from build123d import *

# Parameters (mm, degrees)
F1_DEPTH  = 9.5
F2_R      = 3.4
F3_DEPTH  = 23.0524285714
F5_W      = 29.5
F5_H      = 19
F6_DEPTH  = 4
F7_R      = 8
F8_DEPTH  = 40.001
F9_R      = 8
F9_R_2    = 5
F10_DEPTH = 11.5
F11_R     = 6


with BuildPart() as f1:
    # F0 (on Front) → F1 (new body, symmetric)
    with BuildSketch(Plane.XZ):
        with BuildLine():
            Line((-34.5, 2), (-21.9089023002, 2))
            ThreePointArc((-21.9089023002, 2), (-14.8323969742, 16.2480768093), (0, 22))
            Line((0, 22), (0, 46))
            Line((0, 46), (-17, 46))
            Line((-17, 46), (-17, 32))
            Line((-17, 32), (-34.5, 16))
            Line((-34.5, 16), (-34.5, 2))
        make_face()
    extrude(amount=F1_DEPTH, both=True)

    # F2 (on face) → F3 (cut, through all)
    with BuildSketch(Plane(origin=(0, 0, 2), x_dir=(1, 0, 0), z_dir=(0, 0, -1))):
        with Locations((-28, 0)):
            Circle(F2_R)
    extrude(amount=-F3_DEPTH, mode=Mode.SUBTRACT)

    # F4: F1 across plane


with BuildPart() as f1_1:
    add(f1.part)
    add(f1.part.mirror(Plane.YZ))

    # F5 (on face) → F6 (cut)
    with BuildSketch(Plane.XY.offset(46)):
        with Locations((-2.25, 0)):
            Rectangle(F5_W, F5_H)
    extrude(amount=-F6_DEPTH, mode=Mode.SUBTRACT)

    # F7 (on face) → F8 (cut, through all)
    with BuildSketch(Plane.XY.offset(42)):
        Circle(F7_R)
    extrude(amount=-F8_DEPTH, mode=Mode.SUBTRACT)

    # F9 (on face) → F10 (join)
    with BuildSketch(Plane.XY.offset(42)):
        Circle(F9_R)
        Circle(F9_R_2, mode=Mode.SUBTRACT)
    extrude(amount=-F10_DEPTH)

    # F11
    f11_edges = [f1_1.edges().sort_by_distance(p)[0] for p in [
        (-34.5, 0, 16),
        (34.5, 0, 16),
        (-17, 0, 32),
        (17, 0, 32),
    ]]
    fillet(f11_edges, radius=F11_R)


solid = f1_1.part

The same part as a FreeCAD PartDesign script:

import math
import FreeCAD as App
import Part
import Sketcher


def edges_at(feature, points):
    """Names of the edges that pass closest to the given points."""
    edges = feature.Shape.Edges
    near = lambda p: min(range(len(edges)), key=lambda i: edges[i].distToShape(Part.Vertex(*p))[0])
    return sorted({f"Edge{near(p) + 1}" for p in points})


def add_polygon(sketch, points):
    """Adds a closed chain of lines whose ends are joined by coincident constraints."""
    first, n = sketch.GeometryCount, len(points)
    for a, b in zip(points, points[1:] + points[:1]):
        sketch.addGeometry(Part.LineSegment(App.Vector(*a, 0), App.Vector(*b, 0)), False)
    for i in range(n):
        sketch.addConstraint(Sketcher.Constraint("Coincident", first + i, 2, first + (i + 1) % n, 1))

doc = App.newDocument("Part")
body = doc.addObject("PartDesign::Body", "Body")

sketch1 = body.newObject("Sketcher::SketchObject", "Sketch")
sketch1.AttachmentSupport = (doc.getObject("XZ_Plane"), [""])
sketch1.MapMode = "FlatFace"
sketch1.addGeometry(Part.LineSegment(App.Vector(-34, 2, 0), App.Vector(-22, 2, 0)), False)
sketch1.addGeometry(Part.ArcOfCircle(Part.Circle(App.Vector(0, 0, 0), App.Vector(0, 0, 1), 22), math.radians(90), math.radians(175)), False)
sketch1.addGeometry(Part.LineSegment(App.Vector(0, 22, 0), App.Vector(0, 46, 0)), False)
sketch1.addGeometry(Part.LineSegment(App.Vector(0, 46, 0), App.Vector(-17, 46, 0)), False)
sketch1.addGeometry(Part.LineSegment(App.Vector(-17, 46, 0), App.Vector(-17, 32, 0)), False)
sketch1.addGeometry(Part.LineSegment(App.Vector(-17, 32, 0), App.Vector(-34, 16, 0)), False)
sketch1.addGeometry(Part.LineSegment(App.Vector(-34, 16, 0), App.Vector(-34, 2, 0)), False)
sketch1.addConstraint(Sketcher.Constraint("Coincident", 0, 2, 1, 2))
sketch1.addConstraint(Sketcher.Constraint("Coincident", 1, 1, 2, 1))
sketch1.addConstraint(Sketcher.Constraint("Coincident", 2, 2, 3, 1))
sketch1.addConstraint(Sketcher.Constraint("Coincident", 3, 2, 4, 1))
sketch1.addConstraint(Sketcher.Constraint("Coincident", 4, 2, 5, 1))
sketch1.addConstraint(Sketcher.Constraint("Coincident", 5, 2, 6, 1))
sketch1.addConstraint(Sketcher.Constraint("Coincident", 6, 2, 0, 1))
sketch1.addConstraint(Sketcher.Constraint("Horizontal", 0))
sketch1.addConstraint(Sketcher.Constraint("Vertical", 2))
sketch1.addConstraint(Sketcher.Constraint("Horizontal", 3))
sketch1.addConstraint(Sketcher.Constraint("Vertical", 4))
sketch1.addConstraint(Sketcher.Constraint("Vertical", 6))
sketch1.addConstraint(Sketcher.Constraint("Coincident", 1, 3, -1, 1))
sketch1.addConstraint(Sketcher.Constraint("PointOnObject", 1, 1, -2))
sketch1.addConstraint(Sketcher.Constraint("Equal", 4, 6))
sketch1.addConstraint(Sketcher.Constraint("Radius", 1, 22.0))
sketch1.addConstraint(Sketcher.Constraint("DistanceX", 3, 2, 3, 1, 17.0))
sketch1.addConstraint(Sketcher.Constraint("DistanceY", 2, 1, 2, 2, 24.0))
sketch1.addConstraint(Sketcher.Constraint("DistanceY", 4, 2, 4, 1, 14.0))
sketch1.addConstraint(Sketcher.Constraint("DistanceY", -1, 1, 0, 2, 2.0))
sketch1.addConstraint(Sketcher.Constraint("DistanceX", 5, 2, -1, 1, 34.5))
pad1 = body.newObject("PartDesign::Pad", "Pad")
pad1.Profile = sketch1
pad1.Length = 19
pad1.Midplane = True

sketch2 = body.newObject("Sketcher::SketchObject", "Sketch001")
sketch2.AttachmentSupport = (doc.getObject("XY_Plane"), [""])
sketch2.MapMode = "FlatFace"
sketch2.AttachmentOffset = App.Placement(App.Vector(0, 0, 2), App.Rotation())
sketch2.addGeometry(Part.Circle(App.Vector(-28, 0, 0), App.Vector(0, 0, 1), 3.4), False)
sketch2.addConstraint(Sketcher.Constraint("PointOnObject", 0, 3, -1))
sketch2.addConstraint(Sketcher.Constraint("Diameter", 0, 6.8))
sketch2.addConstraint(Sketcher.Constraint("DistanceX", 0, 3, -1, 1, 28.0))
pocket1 = body.newObject("PartDesign::Pocket", "Pocket")
pocket1.Profile = sketch2
pocket1.Type = "ThroughAll"
pocket1.Reversed = True
body2 = doc.addObject("PartDesign::Body", "Body001")
doc.recompute()

body2.BaseFeature = body
doc.recompute()

mirroring = doc.addObject("Part::Mirroring", "Mirroring")
mirroring.Source = body
mirroring.Base = App.Vector(0, 0, 0)
mirroring.Normal = App.Vector(1, 0, 0)
body3 = doc.addObject("PartDesign::Body", "Body002")
body3.BaseFeature = mirroring
boolean = body2.newObject("PartDesign::Boolean", "Boolean")
boolean.Type = "Fuse"
boolean.addObjects([body3])
doc.recompute()

sketch3 = body2.newObject("Sketcher::SketchObject", "Sketch002")
sketch3.AttachmentSupport = (doc.getObject("XY_Plane001"), [""])
sketch3.MapMode = "FlatFace"
sketch3.AttachmentOffset = App.Placement(App.Vector(0, 0, 46), App.Rotation())
add_polygon(sketch3, [(-17, 10), (-17, -10), (12, -10), (12, 10)])
sketch3.addConstraint(Sketcher.Constraint("Vertical", 0))
sketch3.addConstraint(Sketcher.Constraint("Horizontal", 1))
sketch3.addConstraint(Sketcher.Constraint("Vertical", 2))
sketch3.addConstraint(Sketcher.Constraint("Horizontal", 3))
sketch3.addConstraint(Sketcher.Constraint("DistanceY", 0, 2, 0, 1, 19.0))
sketch3.addConstraint(Sketcher.Constraint("DistanceX", 1, 1, 1, 2, 29.5))
sketch3.addConstraint(Sketcher.Constraint("DistanceX", 0, 2, -1, 1, 17.0))
sketch3.addConstraint(Sketcher.Constraint("DistanceY", 0, 2, -1, 1, 9.5))
pocket2 = body2.newObject("PartDesign::Pocket", "Pocket001")
pocket2.Profile = sketch3
pocket2.Length = 4

sketch4 = body2.newObject("Sketcher::SketchObject", "Sketch003")
sketch4.AttachmentSupport = (doc.getObject("XY_Plane001"), [""])
sketch4.MapMode = "FlatFace"
sketch4.AttachmentOffset = App.Placement(App.Vector(0, 0, 42), App.Rotation())
sketch4.addGeometry(Part.Circle(App.Vector(0, 0, 0), App.Vector(0, 0, 1), 8), False)
sketch4.addConstraint(Sketcher.Constraint("Coincident", 0, 3, -1, 1))
sketch4.addConstraint(Sketcher.Constraint("Diameter", 0, 16.0))
pocket3 = body2.newObject("PartDesign::Pocket", "Pocket002")
pocket3.Profile = sketch4
pocket3.Type = "ThroughAll"

sketch5 = body2.newObject("Sketcher::SketchObject", "Sketch004")
sketch5.AttachmentSupport = (doc.getObject("XY_Plane001"), [""])
sketch5.MapMode = "FlatFace"
sketch5.AttachmentOffset = App.Placement(App.Vector(0, 0, 42), App.Rotation())
sketch5.addGeometry(Part.Circle(App.Vector(0, 0, 0), App.Vector(0, 0, 1), 8), False)
sketch5.addGeometry(Part.Circle(App.Vector(0, 0, 0), App.Vector(0, 0, 1), 5), False)
sketch5.addConstraint(Sketcher.Constraint("Coincident", 0, 3, -1, 1))
sketch5.addConstraint(Sketcher.Constraint("Coincident", 1, 3, -1, 1))
sketch5.addConstraint(Sketcher.Constraint("Diameter", 0, 16.0))
sketch5.addConstraint(Sketcher.Constraint("Diameter", 1, 10.0))
pad2 = body2.newObject("PartDesign::Pad", "Pad001")
pad2.Profile = sketch5
pad2.Length = 11.5
pad2.Reversed = True
doc.recompute()

fillet = body2.newObject("PartDesign::Fillet", "Fillet")
fillet.Base = (pad2, edges_at(pad2, [
    (-34.5, 0, 16),
    (34.5, 0, 16),
    (-17, 0, 32),
    (17, 0, 32),
]))
fillet.Radius = 6
mirroring.Visibility = False

doc.recompute()
